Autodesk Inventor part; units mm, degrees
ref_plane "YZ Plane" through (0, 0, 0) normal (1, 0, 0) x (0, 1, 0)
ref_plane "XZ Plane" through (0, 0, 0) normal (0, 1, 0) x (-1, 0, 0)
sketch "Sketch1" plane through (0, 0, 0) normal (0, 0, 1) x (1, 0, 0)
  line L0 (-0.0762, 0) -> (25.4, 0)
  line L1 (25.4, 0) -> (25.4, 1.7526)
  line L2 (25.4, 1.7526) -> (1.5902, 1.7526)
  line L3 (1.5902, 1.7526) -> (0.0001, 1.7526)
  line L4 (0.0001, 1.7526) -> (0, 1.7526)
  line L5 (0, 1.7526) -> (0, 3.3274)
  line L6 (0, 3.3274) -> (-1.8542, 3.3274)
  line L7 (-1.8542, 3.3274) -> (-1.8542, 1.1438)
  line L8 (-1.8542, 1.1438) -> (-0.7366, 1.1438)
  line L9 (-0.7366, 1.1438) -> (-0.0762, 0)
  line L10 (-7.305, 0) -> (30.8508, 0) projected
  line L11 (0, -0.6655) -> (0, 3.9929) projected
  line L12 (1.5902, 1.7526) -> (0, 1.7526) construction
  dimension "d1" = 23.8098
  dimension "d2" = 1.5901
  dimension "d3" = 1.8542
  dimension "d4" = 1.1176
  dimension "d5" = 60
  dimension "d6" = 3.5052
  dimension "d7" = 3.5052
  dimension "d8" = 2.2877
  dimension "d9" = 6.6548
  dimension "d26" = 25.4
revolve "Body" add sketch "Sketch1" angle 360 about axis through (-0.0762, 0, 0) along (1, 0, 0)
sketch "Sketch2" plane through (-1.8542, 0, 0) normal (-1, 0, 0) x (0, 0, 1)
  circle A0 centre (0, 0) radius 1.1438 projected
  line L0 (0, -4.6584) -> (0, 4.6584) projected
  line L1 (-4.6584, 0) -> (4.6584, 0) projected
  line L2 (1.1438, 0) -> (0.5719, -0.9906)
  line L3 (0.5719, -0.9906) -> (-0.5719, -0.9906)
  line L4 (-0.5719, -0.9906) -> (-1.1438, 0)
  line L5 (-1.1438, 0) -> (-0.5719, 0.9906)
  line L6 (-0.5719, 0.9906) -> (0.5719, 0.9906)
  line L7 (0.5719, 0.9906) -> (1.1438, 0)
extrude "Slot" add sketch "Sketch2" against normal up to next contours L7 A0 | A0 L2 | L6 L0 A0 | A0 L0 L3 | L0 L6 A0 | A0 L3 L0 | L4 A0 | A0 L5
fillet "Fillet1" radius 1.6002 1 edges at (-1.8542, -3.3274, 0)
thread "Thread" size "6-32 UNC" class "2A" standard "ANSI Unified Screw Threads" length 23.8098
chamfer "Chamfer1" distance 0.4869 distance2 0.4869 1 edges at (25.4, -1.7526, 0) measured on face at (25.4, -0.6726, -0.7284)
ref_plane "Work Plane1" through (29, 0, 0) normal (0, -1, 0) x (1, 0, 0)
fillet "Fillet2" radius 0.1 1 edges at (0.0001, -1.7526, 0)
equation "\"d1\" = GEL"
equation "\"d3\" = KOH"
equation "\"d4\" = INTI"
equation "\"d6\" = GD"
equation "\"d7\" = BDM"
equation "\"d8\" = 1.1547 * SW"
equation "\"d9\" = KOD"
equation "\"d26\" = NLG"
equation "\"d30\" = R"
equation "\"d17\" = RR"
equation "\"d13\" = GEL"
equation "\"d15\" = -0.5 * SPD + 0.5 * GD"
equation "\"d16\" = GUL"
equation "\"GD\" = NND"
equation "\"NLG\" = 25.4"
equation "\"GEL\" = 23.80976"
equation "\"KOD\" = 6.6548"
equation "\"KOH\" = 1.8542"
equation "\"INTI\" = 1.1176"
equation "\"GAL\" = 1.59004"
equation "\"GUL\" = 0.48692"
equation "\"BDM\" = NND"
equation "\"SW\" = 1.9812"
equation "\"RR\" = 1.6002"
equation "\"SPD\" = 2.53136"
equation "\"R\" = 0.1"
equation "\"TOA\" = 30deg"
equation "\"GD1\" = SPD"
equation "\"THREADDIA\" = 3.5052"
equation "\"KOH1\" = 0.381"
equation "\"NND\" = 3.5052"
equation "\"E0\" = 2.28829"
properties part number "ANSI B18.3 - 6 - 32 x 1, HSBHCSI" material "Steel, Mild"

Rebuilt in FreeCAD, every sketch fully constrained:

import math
import FreeCAD as App
import Part
import Sketcher

V = App.Vector
Q = App.Units.Quantity


def edges_at(feature, points):
    """Names of the edges that pass closest to the given points."""
    edges = feature.Shape.Edges
    near = lambda p: min(range(len(edges)), key=lambda i: edges[i].distToShape(Part.Vertex(*p))[0])
    return sorted({f"Edge{near(p) + 1}" for p in points})

doc = App.newDocument("Part")
body = doc.addObject("PartDesign::Body", "Body")

sketch1 = doc.addObject("Sketcher::SketchObject", "Sketch")
body.addObject(sketch1)
sketch1.AttachmentSupport = (doc.XY_Plane, [""])
sketch1.MapMode = "FlatFace"
sketch1.addGeometry([
    Part.LineSegment(V(-0.7, 1.1, 0), V(-0.1, 0, 0)),
    Part.LineSegment(V(-0.1, 0, 0), V(25.4, 0, 0)),
    Part.LineSegment(V(25.4, 0, 0), V(25.4, 1.8, 0)),
    Part.LineSegment(V(25.4, 1.8, 0), V(0, 1.8, 0)),
    Part.LineSegment(V(0, 1.8, 0), V(0, 3.3, 0)),
    Part.LineSegment(V(0, 3.3, 0), V(-1.9, 3.3, 0)),
    Part.LineSegment(V(-1.9, 3.3, 0), V(-1.9, 1.1, 0)),
    Part.LineSegment(V(-1.9, 1.1, 0), V(-0.7, 1.1, 0)),
], False)
sketch1.addConstraint([
    Sketcher.Constraint("Coincident", 0, 2, 1, 1),
    Sketcher.Constraint("Coincident", 1, 2, 2, 1),
    Sketcher.Constraint("Coincident", 2, 2, 3, 1),
    Sketcher.Constraint("Coincident", 3, 2, 4, 1),
    Sketcher.Constraint("Coincident", 4, 2, 5, 1),
    Sketcher.Constraint("Coincident", 5, 2, 6, 1),
    Sketcher.Constraint("Coincident", 6, 2, 7, 1),
    Sketcher.Constraint("Coincident", 7, 2, 0, 1),
    Sketcher.Constraint("Horizontal", 1),
    Sketcher.Constraint("Vertical", 2),
    Sketcher.Constraint("Horizontal", 3),
    Sketcher.Constraint("Vertical", 4),
    Sketcher.Constraint("Horizontal", 5),
    Sketcher.Constraint("Vertical", 6),
    Sketcher.Constraint("Horizontal", 7),
    Sketcher.Constraint("PointOnObject", 0, 2, -1),
    Sketcher.Constraint("PointOnObject", 3, 2, -2),
    Sketcher.Constraint("DistanceX", 3, 2, 3, 1, Q("1 in")),
    Sketcher.Constraint("DistanceX", 5, 2, 5, 1, Q("0.073 in")),
    Sketcher.Constraint("DistanceX", 7, 1, 7, 2, Q("0.044 in")),
    Sketcher.Constraint("Angle", 0, Q("-59.999 deg")),
    Sketcher.Constraint("DistanceX", 1, 1, 1, 2, Q("1.003 in")),
    Sketcher.Constraint("DistanceY", 2, 1, 2, 2, Q("0.069 in")),
    Sketcher.Constraint("DistanceY", 4, 1, 4, 2, Q("0.062 in")),
])
revolution = doc.addObject("PartDesign::Revolution", "Revolution")
body.addObject(revolution)
revolution.Profile = sketch1
revolution.ReferenceAxis = (sketch1, ["H_Axis"])
revolution.Angle = 360

sketch2 = doc.addObject("Sketcher::SketchObject", "Sketch001")
body.addObject(sketch2)
sketch2.AttachmentSupport = (doc.YZ_Plane, [""])
sketch2.MapMode = "FlatFace"
sketch2.AttachmentOffset = App.Placement(V(0, 0, -0.073 * 25.4), App.Rotation())
sketch2.addGeometry([
    Part.LineSegment(V(1, 0.6, 0), V(0, 1.1, 0)),
    Part.ArcOfCircle(Part.Circle(V(0, 0, 0), V(0, 0, 1), 1.1), math.radians(30), math.radians(90)),
    Part.ArcOfCircle(Part.Circle(V(0, 0, 0), V(0, 0, 1), 1.1), math.radians(90), math.radians(150)),
    Part.LineSegment(V(0, 1.1, 0), V(-1, 0.6, 0)),
    Part.ArcOfCircle(Part.Circle(V(0, 0, 0), V(0, 0, 1), 1.1), math.radians(-30), math.radians(30)),
    Part.LineSegment(V(1, 0.6, 0), V(1, -0.6, 0)),
    Part.LineSegment(V(-1, 0.6, 0), V(-1, -0.6, 0)),
    Part.ArcOfCircle(Part.Circle(V(0, 0, 0), V(0, 0, 1), 1.1), math.radians(150), math.radians(210)),
    Part.LineSegment(V(-1, -0.6, 0), V(0, -1.1, 0)),
    Part.ArcOfCircle(Part.Circle(V(0, 0, 0), V(0, 0, 1), 1.1), math.radians(-150), math.radians(-90)),
    Part.ArcOfCircle(Part.Circle(V(0, 0, 0), V(0, 0, 1), 1.1), math.radians(-90), math.radians(-30)),
    Part.LineSegment(V(0, -1.1, 0), V(1, -0.6, 0)),
], False)
sketch2.addConstraint([
    Sketcher.Constraint("Coincident", 0, 1, 1, 1),
    Sketcher.Constraint("Coincident", 1, 2, 0, 2),
    Sketcher.Constraint("Coincident", 2, 1, 3, 1),
    Sketcher.Constraint("Coincident", 3, 2, 2, 2),
    Sketcher.Constraint("Coincident", 4, 1, 5, 2),
    Sketcher.Constraint("Coincident", 5, 1, 4, 2),
    Sketcher.Constraint("Coincident", 6, 1, 7, 1),
    Sketcher.Constraint("Coincident", 7, 2, 6, 2),
    Sketcher.Constraint("Coincident", 8, 1, 9, 1),
    Sketcher.Constraint("Coincident", 9, 2, 8, 2),
    Sketcher.Constraint("Coincident", 10, 1, 11, 1),
    Sketcher.Constraint("Coincident", 11, 2, 10, 2),
    Sketcher.Constraint("Vertical", 5),
    Sketcher.Constraint("Vertical", 6),
    Sketcher.Constraint("Coincident", 1, 3, -1, 1),
    Sketcher.Constraint("Coincident", 2, 3, -1, 1),
    Sketcher.Constraint("Coincident", 4, 3, -1, 1),
    Sketcher.Constraint("Coincident", 7, 3, -1, 1),
    Sketcher.Constraint("Coincident", 9, 3, -1, 1),
    Sketcher.Constraint("Coincident", 10, 3, -1, 1),
    Sketcher.Constraint("Coincident", 2, 1, 1, 2),
    Sketcher.Constraint("Coincident", 5, 1, 0, 1),
    Sketcher.Constraint("Coincident", 6, 1, 3, 2),
    Sketcher.Constraint("Coincident", 8, 1, 7, 2),
    Sketcher.Constraint("Coincident", 10, 1, 9, 2),
    Sketcher.Constraint("PointOnObject", 1, 2, -2),
    Sketcher.Constraint("PointOnObject", 9, 2, -2),
    Sketcher.Constraint("Parallel", 0, 8),
    Sketcher.Constraint("Parallel", 3, 11),
    Sketcher.Constraint("Angle", 0, Q("150.001 deg")),
    Sketcher.Constraint("Radius", 1, Q("1.1438 mm")),
])
pad1 = doc.addObject("PartDesign::Pad", "Pad")
body.addObject(pad1)
pad1.Profile = sketch2
pad1.Type = "UpToFirst"
doc.recompute()

fillet = doc.addObject("PartDesign::Fillet", "Fillet")
body.addObject(fillet)
fillet.Base = (pad1, edges_at(pad1, [(-1.854, -3.327, 0)]))
fillet.Radius = Q("0.063 in")
doc.recompute()

chamfer = doc.addObject("PartDesign::Chamfer", "Chamfer")
body.addObject(chamfer)
chamfer.Base = (fillet, edges_at(fillet, [(25.4, -1.753, 0)]))
chamfer.ChamferType = "Two distances"
chamfer.Size = 0.4869
chamfer.Size2 = 0.4869
doc.recompute()

fillet2 = doc.addObject("PartDesign::Fillet", "Fillet001")
body.addObject(fillet2)
fillet2.Base = (chamfer, edges_at(chamfer, [(0, -1.753, 0)]))
fillet2.Radius = 0.1

doc.recompute()
